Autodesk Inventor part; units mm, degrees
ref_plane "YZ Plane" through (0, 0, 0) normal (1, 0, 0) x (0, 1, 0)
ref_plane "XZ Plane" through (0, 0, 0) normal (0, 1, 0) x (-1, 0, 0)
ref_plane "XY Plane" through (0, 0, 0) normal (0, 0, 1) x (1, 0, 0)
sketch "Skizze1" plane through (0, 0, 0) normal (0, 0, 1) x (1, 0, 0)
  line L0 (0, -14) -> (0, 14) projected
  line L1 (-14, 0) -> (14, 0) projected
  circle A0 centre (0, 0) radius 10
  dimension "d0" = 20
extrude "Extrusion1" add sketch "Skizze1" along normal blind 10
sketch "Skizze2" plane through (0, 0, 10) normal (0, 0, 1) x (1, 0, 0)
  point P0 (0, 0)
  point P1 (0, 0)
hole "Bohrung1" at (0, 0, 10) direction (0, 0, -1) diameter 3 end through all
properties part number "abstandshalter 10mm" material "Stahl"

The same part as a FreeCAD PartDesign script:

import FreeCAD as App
import Part
import Sketcher
from FreeCAD import Vector

doc = App.newDocument("Part")
body = doc.addObject("PartDesign::Body", "Body")

sketch1 = doc.addObject("Sketcher::SketchObject", "Sketch")
body.addObject(sketch1)
sketch1.AttachmentSupport = (doc.XY_Plane, [""])
sketch1.MapMode = "FlatFace"
sketch1.addGeometry(Part.Circle(Vector(0, 0, 0), Vector(0, 0, 1), 10), False)
sketch1.addConstraint([
    Sketcher.Constraint("Coincident", 0, 3, -1, 1),
    Sketcher.Constraint("Diameter", 0, 20.0),
])
pad1 = doc.addObject("PartDesign::Pad", "Pad")
body.addObject(pad1)
pad1.Profile = sketch1
pad1.Length = 10

sketch2 = doc.addObject("Sketcher::SketchObject", "Sketch001")
body.addObject(sketch2)
sketch2.AttachmentSupport = (doc.XY_Plane, [""])
sketch2.MapMode = "FlatFace"
sketch2.AttachmentOffset = App.Placement(Vector(0, 0, 10), App.Rotation())
sketch2.addGeometry(Part.Circle(Vector(0, 0, 0), Vector(0, 0, 1), 1.5), False)
sketch2.addConstraint([
    Sketcher.Constraint("Coincident", 0, 3, -1, 1),
    Sketcher.Constraint("Diameter", 0, 3.0),
])
doc.recompute()
hole = doc.addObject("PartDesign::Hole", "Hole")
body.addObject(hole)
hole.Profile = sketch2
hole.ThreadType = "None"
hole.Diameter = 3
hole.DepthType = "ThroughAll"

doc.recompute()
